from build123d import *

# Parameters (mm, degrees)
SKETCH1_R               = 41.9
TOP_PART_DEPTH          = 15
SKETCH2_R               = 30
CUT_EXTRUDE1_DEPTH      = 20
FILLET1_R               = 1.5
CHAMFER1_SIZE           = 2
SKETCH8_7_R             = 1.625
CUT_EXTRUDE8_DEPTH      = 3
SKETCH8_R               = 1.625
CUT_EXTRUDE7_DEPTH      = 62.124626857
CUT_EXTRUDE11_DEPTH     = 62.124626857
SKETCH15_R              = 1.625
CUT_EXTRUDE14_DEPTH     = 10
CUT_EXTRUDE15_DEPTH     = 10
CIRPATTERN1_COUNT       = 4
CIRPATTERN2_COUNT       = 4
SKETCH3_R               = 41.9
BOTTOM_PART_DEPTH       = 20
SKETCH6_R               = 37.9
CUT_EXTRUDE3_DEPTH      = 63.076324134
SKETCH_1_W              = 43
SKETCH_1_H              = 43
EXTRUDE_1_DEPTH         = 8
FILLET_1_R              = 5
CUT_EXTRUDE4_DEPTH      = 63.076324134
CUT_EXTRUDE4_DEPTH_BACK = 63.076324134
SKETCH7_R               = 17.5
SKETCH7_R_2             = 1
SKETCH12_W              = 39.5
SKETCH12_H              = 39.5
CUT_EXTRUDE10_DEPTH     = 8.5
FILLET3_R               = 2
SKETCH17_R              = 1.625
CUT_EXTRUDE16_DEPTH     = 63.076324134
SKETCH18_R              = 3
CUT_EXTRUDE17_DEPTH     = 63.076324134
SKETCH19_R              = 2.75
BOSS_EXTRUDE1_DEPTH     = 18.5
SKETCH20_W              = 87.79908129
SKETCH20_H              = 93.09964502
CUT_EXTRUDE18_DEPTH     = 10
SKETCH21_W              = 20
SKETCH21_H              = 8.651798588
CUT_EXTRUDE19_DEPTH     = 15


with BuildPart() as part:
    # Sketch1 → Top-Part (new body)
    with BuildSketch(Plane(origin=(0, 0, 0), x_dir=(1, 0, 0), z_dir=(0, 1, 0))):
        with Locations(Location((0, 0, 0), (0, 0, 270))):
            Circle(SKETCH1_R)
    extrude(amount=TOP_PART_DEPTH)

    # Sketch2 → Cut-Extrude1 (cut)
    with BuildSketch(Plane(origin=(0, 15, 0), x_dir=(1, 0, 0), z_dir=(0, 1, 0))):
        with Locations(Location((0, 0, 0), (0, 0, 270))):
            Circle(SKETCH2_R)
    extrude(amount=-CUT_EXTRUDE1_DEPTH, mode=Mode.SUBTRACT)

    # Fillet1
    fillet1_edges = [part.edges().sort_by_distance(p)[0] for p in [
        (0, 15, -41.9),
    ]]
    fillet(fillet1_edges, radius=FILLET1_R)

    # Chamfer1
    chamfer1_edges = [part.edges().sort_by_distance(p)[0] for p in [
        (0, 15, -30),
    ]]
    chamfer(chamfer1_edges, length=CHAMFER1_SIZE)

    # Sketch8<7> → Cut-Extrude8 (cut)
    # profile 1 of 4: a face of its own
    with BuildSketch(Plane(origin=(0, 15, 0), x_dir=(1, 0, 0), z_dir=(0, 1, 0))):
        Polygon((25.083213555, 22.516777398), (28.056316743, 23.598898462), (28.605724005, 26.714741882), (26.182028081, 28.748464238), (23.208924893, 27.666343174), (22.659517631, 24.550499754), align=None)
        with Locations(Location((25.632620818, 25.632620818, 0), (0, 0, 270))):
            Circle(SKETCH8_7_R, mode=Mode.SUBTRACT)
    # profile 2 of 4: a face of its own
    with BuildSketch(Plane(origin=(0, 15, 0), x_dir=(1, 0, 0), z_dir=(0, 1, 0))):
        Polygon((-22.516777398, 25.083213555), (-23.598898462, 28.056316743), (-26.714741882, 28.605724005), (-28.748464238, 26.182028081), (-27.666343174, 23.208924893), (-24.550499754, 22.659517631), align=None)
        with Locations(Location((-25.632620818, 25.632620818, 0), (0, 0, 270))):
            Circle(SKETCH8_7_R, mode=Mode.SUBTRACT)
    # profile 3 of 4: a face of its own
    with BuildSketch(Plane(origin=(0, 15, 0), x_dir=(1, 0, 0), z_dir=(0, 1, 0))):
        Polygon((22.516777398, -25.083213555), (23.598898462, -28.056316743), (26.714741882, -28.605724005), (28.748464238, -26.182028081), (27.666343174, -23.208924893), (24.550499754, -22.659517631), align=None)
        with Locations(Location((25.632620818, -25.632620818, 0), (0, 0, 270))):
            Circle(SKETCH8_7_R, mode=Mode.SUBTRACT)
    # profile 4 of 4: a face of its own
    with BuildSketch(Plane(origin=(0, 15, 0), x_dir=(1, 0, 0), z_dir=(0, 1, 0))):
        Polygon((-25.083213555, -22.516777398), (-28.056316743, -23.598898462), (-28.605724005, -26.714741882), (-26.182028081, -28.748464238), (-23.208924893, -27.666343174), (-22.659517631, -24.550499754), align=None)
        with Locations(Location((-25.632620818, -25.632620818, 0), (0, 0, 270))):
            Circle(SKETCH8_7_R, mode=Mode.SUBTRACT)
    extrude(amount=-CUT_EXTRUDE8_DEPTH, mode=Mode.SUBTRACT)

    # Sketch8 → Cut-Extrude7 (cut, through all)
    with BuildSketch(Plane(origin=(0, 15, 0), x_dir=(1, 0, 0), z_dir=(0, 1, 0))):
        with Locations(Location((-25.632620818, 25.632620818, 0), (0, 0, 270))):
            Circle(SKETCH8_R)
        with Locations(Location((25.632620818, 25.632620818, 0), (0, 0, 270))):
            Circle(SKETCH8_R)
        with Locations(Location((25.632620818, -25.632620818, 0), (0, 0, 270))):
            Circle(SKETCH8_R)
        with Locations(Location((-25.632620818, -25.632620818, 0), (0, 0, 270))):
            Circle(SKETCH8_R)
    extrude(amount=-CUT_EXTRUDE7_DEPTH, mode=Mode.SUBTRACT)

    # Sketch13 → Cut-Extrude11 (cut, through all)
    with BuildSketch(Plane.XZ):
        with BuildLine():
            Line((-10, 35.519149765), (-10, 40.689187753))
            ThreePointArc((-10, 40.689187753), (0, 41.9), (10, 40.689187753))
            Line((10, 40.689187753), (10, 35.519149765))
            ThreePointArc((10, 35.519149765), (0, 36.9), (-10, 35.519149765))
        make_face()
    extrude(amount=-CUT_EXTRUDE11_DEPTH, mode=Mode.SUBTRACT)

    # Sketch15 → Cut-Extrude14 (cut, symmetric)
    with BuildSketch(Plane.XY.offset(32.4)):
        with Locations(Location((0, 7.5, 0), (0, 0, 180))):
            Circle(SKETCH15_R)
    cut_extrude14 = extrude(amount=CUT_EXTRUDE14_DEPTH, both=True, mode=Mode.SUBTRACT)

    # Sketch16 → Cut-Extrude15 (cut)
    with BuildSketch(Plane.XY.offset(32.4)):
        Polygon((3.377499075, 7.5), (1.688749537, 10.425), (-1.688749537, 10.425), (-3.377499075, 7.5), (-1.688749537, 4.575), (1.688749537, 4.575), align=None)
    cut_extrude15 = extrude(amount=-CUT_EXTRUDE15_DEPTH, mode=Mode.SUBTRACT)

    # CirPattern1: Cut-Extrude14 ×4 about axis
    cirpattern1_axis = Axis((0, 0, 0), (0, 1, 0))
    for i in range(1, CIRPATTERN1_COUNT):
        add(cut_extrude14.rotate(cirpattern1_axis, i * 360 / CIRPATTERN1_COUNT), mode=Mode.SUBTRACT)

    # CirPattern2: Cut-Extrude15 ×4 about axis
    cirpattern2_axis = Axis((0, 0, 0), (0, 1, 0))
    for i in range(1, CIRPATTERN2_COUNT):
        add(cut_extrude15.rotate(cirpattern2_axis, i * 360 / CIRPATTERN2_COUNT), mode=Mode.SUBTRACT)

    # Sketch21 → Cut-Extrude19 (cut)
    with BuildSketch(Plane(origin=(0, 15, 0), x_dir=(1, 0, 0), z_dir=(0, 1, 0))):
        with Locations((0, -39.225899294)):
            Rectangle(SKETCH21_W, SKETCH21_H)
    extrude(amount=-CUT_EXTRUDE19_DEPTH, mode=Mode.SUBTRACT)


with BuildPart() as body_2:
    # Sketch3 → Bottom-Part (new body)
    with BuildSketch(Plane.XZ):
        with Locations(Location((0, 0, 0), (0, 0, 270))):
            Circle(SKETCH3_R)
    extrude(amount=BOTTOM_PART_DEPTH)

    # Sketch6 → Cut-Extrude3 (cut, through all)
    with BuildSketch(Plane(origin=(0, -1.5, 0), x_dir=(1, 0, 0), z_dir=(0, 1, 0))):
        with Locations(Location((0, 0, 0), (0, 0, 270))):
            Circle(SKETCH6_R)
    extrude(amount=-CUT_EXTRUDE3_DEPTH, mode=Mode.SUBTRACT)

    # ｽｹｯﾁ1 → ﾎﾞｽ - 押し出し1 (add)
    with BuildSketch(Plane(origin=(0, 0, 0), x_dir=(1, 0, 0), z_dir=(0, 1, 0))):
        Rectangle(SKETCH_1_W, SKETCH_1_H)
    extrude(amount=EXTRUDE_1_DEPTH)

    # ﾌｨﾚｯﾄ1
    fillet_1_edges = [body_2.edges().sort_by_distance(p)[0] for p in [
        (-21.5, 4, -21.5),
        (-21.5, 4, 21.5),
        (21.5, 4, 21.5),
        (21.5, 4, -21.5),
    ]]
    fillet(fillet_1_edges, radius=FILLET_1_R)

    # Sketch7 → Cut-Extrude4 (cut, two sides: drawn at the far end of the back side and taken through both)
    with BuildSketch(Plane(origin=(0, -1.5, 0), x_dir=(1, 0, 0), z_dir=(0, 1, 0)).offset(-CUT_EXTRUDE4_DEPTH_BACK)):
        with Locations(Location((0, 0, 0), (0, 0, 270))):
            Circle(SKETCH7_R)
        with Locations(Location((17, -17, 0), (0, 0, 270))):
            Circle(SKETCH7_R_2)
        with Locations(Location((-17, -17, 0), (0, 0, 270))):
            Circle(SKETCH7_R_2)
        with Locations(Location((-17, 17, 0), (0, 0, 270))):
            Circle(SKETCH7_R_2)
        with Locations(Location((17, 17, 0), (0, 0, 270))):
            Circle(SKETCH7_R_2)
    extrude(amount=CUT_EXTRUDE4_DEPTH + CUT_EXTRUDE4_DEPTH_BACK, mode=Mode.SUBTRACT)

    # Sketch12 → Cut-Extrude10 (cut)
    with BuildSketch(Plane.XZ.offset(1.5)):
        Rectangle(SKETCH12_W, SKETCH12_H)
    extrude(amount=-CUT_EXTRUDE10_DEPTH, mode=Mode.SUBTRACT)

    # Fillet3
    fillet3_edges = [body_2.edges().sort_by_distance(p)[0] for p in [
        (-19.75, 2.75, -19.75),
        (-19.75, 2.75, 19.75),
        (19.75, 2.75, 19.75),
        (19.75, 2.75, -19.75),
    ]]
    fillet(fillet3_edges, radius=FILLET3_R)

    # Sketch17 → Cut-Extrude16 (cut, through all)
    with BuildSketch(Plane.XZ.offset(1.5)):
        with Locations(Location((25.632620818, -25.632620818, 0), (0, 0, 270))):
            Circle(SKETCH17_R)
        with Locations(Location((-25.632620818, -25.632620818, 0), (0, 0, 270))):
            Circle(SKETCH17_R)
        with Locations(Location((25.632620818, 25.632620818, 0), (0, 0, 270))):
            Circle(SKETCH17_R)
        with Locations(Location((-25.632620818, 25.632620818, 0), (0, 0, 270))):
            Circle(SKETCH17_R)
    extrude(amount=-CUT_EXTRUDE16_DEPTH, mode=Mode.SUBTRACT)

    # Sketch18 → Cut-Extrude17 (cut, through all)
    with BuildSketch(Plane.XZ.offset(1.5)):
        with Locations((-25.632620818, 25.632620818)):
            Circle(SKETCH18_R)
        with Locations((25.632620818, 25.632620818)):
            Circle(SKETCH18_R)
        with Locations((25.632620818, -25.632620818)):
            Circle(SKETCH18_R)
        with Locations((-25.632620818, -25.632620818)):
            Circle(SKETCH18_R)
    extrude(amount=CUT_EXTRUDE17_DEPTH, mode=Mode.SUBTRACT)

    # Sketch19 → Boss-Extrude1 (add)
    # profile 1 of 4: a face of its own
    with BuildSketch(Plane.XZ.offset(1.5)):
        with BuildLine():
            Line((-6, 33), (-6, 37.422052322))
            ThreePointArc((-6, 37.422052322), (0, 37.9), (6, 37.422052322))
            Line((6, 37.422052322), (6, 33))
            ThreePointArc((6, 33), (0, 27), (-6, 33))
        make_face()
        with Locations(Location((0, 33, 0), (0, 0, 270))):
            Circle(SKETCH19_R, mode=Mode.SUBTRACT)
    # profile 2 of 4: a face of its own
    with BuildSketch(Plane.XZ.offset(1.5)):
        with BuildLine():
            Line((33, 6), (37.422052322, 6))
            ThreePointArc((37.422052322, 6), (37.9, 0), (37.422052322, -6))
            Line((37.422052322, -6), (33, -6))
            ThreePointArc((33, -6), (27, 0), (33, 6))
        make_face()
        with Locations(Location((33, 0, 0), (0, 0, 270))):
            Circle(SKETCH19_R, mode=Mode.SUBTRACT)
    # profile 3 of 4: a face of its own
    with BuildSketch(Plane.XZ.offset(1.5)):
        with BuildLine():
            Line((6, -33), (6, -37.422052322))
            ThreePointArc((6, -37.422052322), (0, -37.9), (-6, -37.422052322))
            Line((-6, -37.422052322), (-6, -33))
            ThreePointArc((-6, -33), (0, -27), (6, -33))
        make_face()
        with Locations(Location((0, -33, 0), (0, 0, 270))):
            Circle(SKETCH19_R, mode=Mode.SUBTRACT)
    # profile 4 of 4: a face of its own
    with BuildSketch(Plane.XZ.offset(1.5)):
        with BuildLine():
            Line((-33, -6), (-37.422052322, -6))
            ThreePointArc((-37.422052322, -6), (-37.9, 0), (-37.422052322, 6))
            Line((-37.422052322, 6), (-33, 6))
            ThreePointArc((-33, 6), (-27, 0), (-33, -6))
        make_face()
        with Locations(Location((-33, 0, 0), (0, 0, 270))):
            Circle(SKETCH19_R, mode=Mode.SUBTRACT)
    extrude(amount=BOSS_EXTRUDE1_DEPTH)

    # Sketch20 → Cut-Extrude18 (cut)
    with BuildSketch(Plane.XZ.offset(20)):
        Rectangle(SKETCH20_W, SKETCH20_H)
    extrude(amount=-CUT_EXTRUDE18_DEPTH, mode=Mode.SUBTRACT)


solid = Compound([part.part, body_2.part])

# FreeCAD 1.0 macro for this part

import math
import FreeCAD as App
import Part
import Sketcher

V = App.Vector
Q = App.Units.Quantity


def edges_at(feature, points):
    """Names of the edges that pass closest to the given points."""
    edges = feature.Shape.Edges
    near = lambda p: min(range(len(edges)), key=lambda i: edges[i].distToShape(Part.Vertex(*p))[0])
    return sorted({f"Edge{near(p) + 1}" for p in points})

doc = App.newDocument("Part")
body = doc.addObject("PartDesign::Body", "Body")

# Sketch on XZ plane
sketch1 = doc.addObject("Sketcher::SketchObject", "Sketch")
body.addObject(sketch1)
sketch1.AttachmentSupport = (doc.XZ_Plane, [""])
sketch1.MapMode = "FlatFace"
sketch1.addGeometry(Part.Circle(V(0, 0, 0), V(0, 0, 1), 42), False)
sketch1.addConstraint([
    Sketcher.Constraint("Coincident", 0, 3, -1, 1),
    Sketcher.Constraint("Diameter", 0, Q("83.8 mm")),
])
pad1 = doc.addObject("PartDesign::Pad", "Pad")
body.addObject(pad1)
pad1.Profile = sketch1
pad1.Length = 15
pad1.Reversed = True

# Sketch on XZ plane
sketch2 = doc.addObject("Sketcher::SketchObject", "Sketch001")
body.addObject(sketch2)
sketch2.AttachmentSupport = (doc.XZ_Plane, [""])
sketch2.MapMode = "FlatFace"
sketch2.AttachmentOffset = App.Placement(V(0, 0, -15), App.Rotation())
sketch2.addGeometry(Part.Circle(V(0, 0, 0), V(0, 0, 1), 30), False)
sketch2.addConstraint([
    Sketcher.Constraint("Coincident", 0, 3, -1, 1),
    Sketcher.Constraint("Diameter", 0, Q("60 mm")),
])
pocket1 = doc.addObject("PartDesign::Pocket", "Pocket")
body.addObject(pocket1)
pocket1.Profile = sketch2
pocket1.Length = 20
pocket1.Reversed = True
doc.recompute()

fillet = doc.addObject("PartDesign::Fillet", "Fillet")
body.addObject(fillet)
fillet.Base = (pocket1, edges_at(pocket1, [(0, 15, -41.9)]))
fillet.Radius = 1.5
doc.recompute()

chamfer = doc.addObject("PartDesign::Chamfer", "Chamfer")
body.addObject(chamfer)
chamfer.Base = (fillet, edges_at(fillet, [(0, 15, -30)]))
chamfer.Size = 2

# Sketch on XZ plane
sketch3 = doc.addObject("Sketcher::SketchObject", "Sketch002")
body.addObject(sketch3)
sketch3.AttachmentSupport = (doc.XZ_Plane, [""])
sketch3.MapMode = "FlatFace"
sketch3.AttachmentOffset = App.Placement(V(0, 0, -15), App.Rotation())
sketch3.addGeometry([
    Part.LineSegment(V(25.1, -22.5, 0), V(28.1, -23.6, 0)),  # 0
    Part.LineSegment(V(28.1, -23.6, 0), V(28.6, -26.7, 0)),  # 1
    Part.LineSegment(V(28.6, -26.7, 0), V(26.2, -28.7, 0)),  # 2
    Part.LineSegment(V(26.2, -28.7, 0), V(23.2, -27.7, 0)),  # 3
    Part.LineSegment(V(23.2, -27.7, 0), V(22.7, -24.6, 0)),  # 4
    Part.LineSegment(V(22.7, -24.6, 0), V(25.1, -22.5, 0)),  # 5
    Part.Circle(V(25.6, -25.6, 0), V(0, 0, 1), 1.6),  # 6
    Part.LineSegment(V(-22.5, -25.1, 0), V(-23.6, -28.1, 0)),  # 7
    Part.LineSegment(V(-23.6, -28.1, 0), V(-26.7, -28.6, 0)),  # 8
    Part.LineSegment(V(-26.7, -28.6, 0), V(-28.7, -26.2, 0)),  # 9
    Part.LineSegment(V(-28.7, -26.2, 0), V(-27.7, -23.2, 0)),  # 10
    Part.LineSegment(V(-27.7, -23.2, 0), V(-24.6, -22.7, 0)),  # 11
    Part.LineSegment(V(-24.6, -22.7, 0), V(-22.5, -25.1, 0)),  # 12
    Part.Circle(V(-25.6, -25.6, 0), V(0, 0, 1), 1.6),  # 13
    Part.LineSegment(V(22.5, 25.1, 0), V(23.6, 28.1, 0)),  # 14
    Part.LineSegment(V(23.6, 28.1, 0), V(26.7, 28.6, 0)),  # 15
    Part.LineSegment(V(26.7, 28.6, 0), V(28.7, 26.2, 0)),  # 16
    Part.LineSegment(V(28.7, 26.2, 0), V(27.7, 23.2, 0)),  # 17
    Part.LineSegment(V(27.7, 23.2, 0), V(24.6, 22.7, 0)),  # 18
    Part.LineSegment(V(24.6, 22.7, 0), V(22.5, 25.1, 0)),  # 19
    Part.Circle(V(25.6, 25.6, 0), V(0, 0, 1), 1.6),  # 20
    Part.LineSegment(V(-25.1, 22.5, 0), V(-28.1, 23.6, 0)),  # 21
    Part.LineSegment(V(-28.1, 23.6, 0), V(-28.6, 26.7, 0)),  # 22
    Part.LineSegment(V(-28.6, 26.7, 0), V(-26.2, 28.7, 0)),  # 23
    Part.LineSegment(V(-26.2, 28.7, 0), V(-23.2, 27.7, 0)),  # 24
    Part.LineSegment(V(-23.2, 27.7, 0), V(-22.7, 24.6, 0)),  # 25
    Part.LineSegment(V(-22.7, 24.6, 0), V(-25.1, 22.5, 0)),  # 26
    Part.Circle(V(-25.6, 25.6, 0), V(0, 0, 1), 1.6),  # 27
], False)
sketch3.addConstraint([
    Sketcher.Constraint("Coincident", 0, 2, 1, 1),
    Sketcher.Constraint("Coincident", 1, 2, 2, 1),
    Sketcher.Constraint("Coincident", 2, 2, 3, 1),
    Sketcher.Constraint("Coincident", 3, 2, 4, 1),
    Sketcher.Constraint("Coincident", 4, 2, 5, 1),
    Sketcher.Constraint("Coincident", 5, 2, 0, 1),
    Sketcher.Constraint("Coincident", 7, 2, 8, 1),
    Sketcher.Constraint("Coincident", 8, 2, 9, 1),
    Sketcher.Constraint("Coincident", 9, 2, 10, 1),
    Sketcher.Constraint("Coincident", 10, 2, 11, 1),
    Sketcher.Constraint("Coincident", 11, 2, 12, 1),
    Sketcher.Constraint("Coincident", 12, 2, 7, 1),
    Sketcher.Constraint("Coincident", 14, 2, 15, 1),
    Sketcher.Constraint("Coincident", 15, 2, 16, 1),
    Sketcher.Constraint("Coincident", 16, 2, 17, 1),
    Sketcher.Constraint("Coincident", 17, 2, 18, 1),
    Sketcher.Constraint("Coincident", 18, 2, 19, 1),
    Sketcher.Constraint("Coincident", 19, 2, 14, 1),
    Sketcher.Constraint("Coincident", 21, 2, 22, 1),
    Sketcher.Constraint("Coincident", 22, 2, 23, 1),
    Sketcher.Constraint("Coincident", 23, 2, 24, 1),
    Sketcher.Constraint("Coincident", 24, 2, 25, 1),
    Sketcher.Constraint("Coincident", 25, 2, 26, 1),
    Sketcher.Constraint("Coincident", 26, 2, 21, 1),
    Sketcher.Constraint("Equal", 6, 13),
    Sketcher.Constraint("Equal", 13, 20),
    Sketcher.Constraint("Equal", 20, 27),
    Sketcher.Constraint("Symmetric", 13, 3, 20, 3, -1, 1),
    Sketcher.Constraint("Symmetric", 6, 3, 27, 3, -1, 1),
    Sketcher.Constraint("Symmetric", 7, 2, 14, 2, -1, 1),
    Sketcher.Constraint("Symmetric", 8, 2, 15, 2, -1, 1),
    Sketcher.Constraint("Symmetric", 9, 2, 16, 2, -1, 1),
    Sketcher.Constraint("Symmetric", 10, 2, 17, 2, -1, 1),
    Sketcher.Constraint("Symmetric", 11, 2, 18, 2, -1, 1),
    Sketcher.Constraint("Symmetric", 12, 2, 19, 2, -1, 1),
    Sketcher.Constraint("Symmetric", 0, 2, 21, 2, -1, 1),
    Sketcher.Constraint("Symmetric", 1, 2, 22, 2, -1, 1),
    Sketcher.Constraint("Symmetric", 2, 2, 23, 2, -1, 1),
    Sketcher.Constraint("Symmetric", 3, 2, 24, 2, -1, 1),
    Sketcher.Constraint("Symmetric", 4, 2, 25, 2, -1, 1),
    Sketcher.Constraint("Symmetric", 5, 2, 26, 2, -1, 1),
    Sketcher.Constraint("Symmetric", 6, 3, 13, 3, -2),
    Sketcher.Constraint("Parallel", 0, 3),
    Sketcher.Constraint("Parallel", 1, 4),
    Sketcher.Constraint("Parallel", 2, 5),
    Sketcher.Constraint("Perpendicular", 3, 7),
    Sketcher.Constraint("Perpendicular", 4, 8),
    Sketcher.Constraint("Perpendicular", 5, 9),
    Sketcher.Constraint("Parallel", 7, 10),
    Sketcher.Constraint("Parallel", 8, 11),
    Sketcher.Constraint("Parallel", 9, 12),
    Sketcher.Constraint("Equal", 0, 1),
    Sketcher.Constraint("Equal", 1, 2),
    Sketcher.Constraint("Equal", 2, 3),
    Sketcher.Constraint("Equal", 5, 7),
    Sketcher.Constraint("Equal", 7, 8),
    Sketcher.Constraint("Equal", 8, 9),
    Sketcher.Constraint("Equal", 9, 10),
    Sketcher.Constraint("Diameter", 6, Q("3.25 mm")),
    Sketcher.Constraint("Angle", 0, Q("-20 deg")),
    Sketcher.Constraint("Angle", 1, Q("-80 deg")),
    Sketcher.Constraint("Angle", 2, Q("-140 deg")),
    Sketcher.Constraint("DistanceY", 0, 2, -1, 1, Q("23.598898 mm")),
    Sketcher.Constraint("DistanceY", 4, 2, -1, 1, Q("24.5505 mm")),
    Sketcher.Constraint("DistanceX", 7, 2, -1, 1, Q("23.598898 mm")),
    Sketcher.Constraint("DistanceY", 5, 2, 15, 2, Q("51.122501 mm")),
    Sketcher.Constraint("DistanceX", 22, 2, 19, 2, Q("51.122501 mm")),
    Sketcher.Constraint("DistanceX", -1, 1, 6, 3, Q("25.632621 mm")),
    Sketcher.Constraint("DistanceY", 6, 3, -1, 1, Q("25.632621 mm")),
])
pocket2 = doc.addObject("PartDesign::Pocket", "Pocket001")
body.addObject(pocket2)
pocket2.Profile = sketch3
pocket2.Length = 3
pocket2.Reversed = True

# Sketch on XZ plane
sketch4 = doc.addObject("Sketcher::SketchObject", "Sketch003")
body.addObject(sketch4)
sketch4.AttachmentSupport = (doc.XZ_Plane, [""])
sketch4.MapMode = "FlatFace"
sketch4.AttachmentOffset = App.Placement(V(0, 0, -15), App.Rotation())
sketch4.addGeometry([
    Part.Circle(V(-25.6, -25.6, 0), V(0, 0, 1), 1.6),
    Part.Circle(V(25.6, -25.6, 0), V(0, 0, 1), 1.6),
    Part.Circle(V(25.6, 25.6, 0), V(0, 0, 1), 1.6),
    Part.Circle(V(-25.6, 25.6, 0), V(0, 0, 1), 1.6),
], False)
sketch4.addConstraint([
    Sketcher.Constraint("Equal", 0, 1),
    Sketcher.Constraint("Equal", 1, 2),
    Sketcher.Constraint("Equal", 2, 3),
    Sketcher.Constraint("Symmetric", 0, 3, 2, 3, -1, 1),
    Sketcher.Constraint("Symmetric", 1, 3, 3, 3, -1, 1),
    Sketcher.Constraint("Symmetric", 0, 3, 1, 3, -2),
    Sketcher.Constraint("Diameter", 0, Q("3.25 mm")),
    Sketcher.Constraint("DistanceX", 0, 3, -1, 1, Q("25.632621 mm")),
    Sketcher.Constraint("DistanceY", 0, 3, -1, 1, Q("25.632621 mm")),
])
pocket3 = doc.addObject("PartDesign::Pocket", "Pocket002")
body.addObject(pocket3)
pocket3.Profile = sketch4
pocket3.Type = "ThroughAll"
pocket3.Reversed = True

# Sketch on XZ plane
sketch5 = doc.addObject("Sketcher::SketchObject", "Sketch004")
body.addObject(sketch5)
sketch5.AttachmentSupport = (doc.XZ_Plane, [""])
sketch5.MapMode = "FlatFace"
sketch5.addGeometry([
    Part.LineSegment(V(-10, 41, 0), V(-10, 36, 0)),
    Part.ArcOfCircle(Part.Circle(V(0, 0, 0), V(0, 0, 1), 37), math.radians(74), math.radians(106)),
    Part.LineSegment(V(10, 36, 0), V(10, 41, 0)),
    Part.ArcOfCircle(Part.Circle(V(0, 0, 0), V(0, 0, 1), 42), math.radians(76), math.radians(104)),
], False)
sketch5.addConstraint([
    Sketcher.Constraint("Coincident", 0, 2, 1, 2),
    Sketcher.Constraint("Coincident", 1, 1, 2, 1),
    Sketcher.Constraint("Coincident", 2, 2, 3, 1),
    Sketcher.Constraint("Coincident", 3, 2, 0, 1),
    Sketcher.Constraint("Vertical", 0),
    Sketcher.Constraint("Vertical", 2),
    Sketcher.Constraint("Coincident", 1, 3, -1, 1),
    Sketcher.Constraint("Coincident", 3, 3, -1, 1),
    Sketcher.Constraint("Horizontal", 0, 2, 1, 1),
    Sketcher.Constraint("Radius", 1, Q("36.9 mm")),
    Sketcher.Constraint("Radius", 3, Q("41.9 mm")),
    Sketcher.Constraint("DistanceX", 0, 2, -1, 1, Q("10 mm")),
])
pocket4 = doc.addObject("PartDesign::Pocket", "Pocket003")
body.addObject(pocket4)
pocket4.Profile = sketch5
pocket4.Type = "ThroughAll"

# Sketch on XY plane
sketch6 = doc.addObject("Sketcher::SketchObject", "Sketch005")
body.addObject(sketch6)
sketch6.AttachmentSupport = (doc.XY_Plane, [""])
sketch6.MapMode = "FlatFace"
sketch6.AttachmentOffset = App.Placement(V(0, 0, 32.4), App.Rotation())
sketch6.addGeometry(Part.Circle(V(0, 7.5, 0), V(0, 0, 1), 1.6), False)
sketch6.addConstraint([
    Sketcher.Constraint("PointOnObject", 0, 3, -2),
    Sketcher.Constraint("Diameter", 0, Q("3.25 mm")),
    Sketcher.Constraint("DistanceY", -1, 1, 0, 3, Q("7.5 mm")),
])
pocket5 = doc.addObject("PartDesign::Pocket", "Pocket004")
body.addObject(pocket5)
pocket5.Profile = sketch6
pocket5.Length = 20
pocket5.Midplane = True

# Sketch on XY plane
sketch7 = doc.addObject("Sketcher::SketchObject", "Sketch006")
body.addObject(sketch7)
sketch7.AttachmentSupport = (doc.XY_Plane, [""])
sketch7.MapMode = "FlatFace"
sketch7.AttachmentOffset = App.Placement(V(0, 0, 32.4), App.Rotation())
sketch7.addGeometry([
    Part.LineSegment(V(3.4, 7.5, 0), V(1.7, 10.4, 0)),  # 0
    Part.LineSegment(V(1.7, 10.4, 0), V(-1.7, 10.4, 0)),  # 1
    Part.LineSegment(V(-1.7, 10.4, 0), V(-3.4, 7.5, 0)),  # 2
    Part.LineSegment(V(-3.4, 7.5, 0), V(-1.7, 4.6, 0)),  # 3
    Part.LineSegment(V(-1.7, 4.6, 0), V(1.7, 4.6, 0)),  # 4
    Part.LineSegment(V(1.7, 4.6, 0), V(3.4, 7.5, 0)),  # 5
], False)
sketch7.addConstraint([
    Sketcher.Constraint("Coincident", 0, 2, 1, 1),
    Sketcher.Constraint("Coincident", 1, 2, 2, 1),
    Sketcher.Constraint("Coincident", 2, 2, 3, 1),
    Sketcher.Constraint("Coincident", 3, 2, 4, 1),
    Sketcher.Constraint("Coincident", 4, 2, 5, 1),
    Sketcher.Constraint("Coincident", 5, 2, 0, 1),
    Sketcher.Constraint("Horizontal", 1),
    Sketcher.Constraint("Horizontal", 4),
    Sketcher.Constraint("Symmetric", 2, 2, 5, 2, -2),
    Sketcher.Constraint("Parallel", 0, 3),
    Sketcher.Constraint("Parallel", 2, 5),
    Sketcher.Constraint("Vertical", 1, 2, 3, 2),
    Sketcher.Constraint("Vertical", 0, 2, 4, 2),
    Sketcher.Constraint("Angle", 0, Q("120 deg")),
    Sketcher.Constraint("DistanceY", -1, 1, 2, 2, Q("7.5 mm")),
    Sketcher.Constraint("DistanceY", 3, 2, 1, 2, Q("5.85 mm")),
    Sketcher.Constraint("DistanceX", 1, 2, 1, 1, Q("3.377499 mm")),
])
pocket6 = doc.addObject("PartDesign::Pocket", "Pocket005")
body.addObject(pocket6)
pocket6.Profile = sketch7
pocket6.Length = 10
doc.recompute()

polarpattern = doc.addObject("PartDesign::PolarPattern", "PolarPattern")
body.addObject(polarpattern)
polarpattern.Originals = [pocket5]
polarpattern.Axis = (doc.Y_Axis, [""])
polarpattern.Angle = 360
polarpattern.Occurrences = 4
body.Tip = polarpattern
doc.recompute()

polarpattern2 = doc.addObject("PartDesign::PolarPattern", "PolarPattern001")
body.addObject(polarpattern2)
polarpattern2.Originals = [pocket6]
polarpattern2.Axis = (doc.Y_Axis, [""])
polarpattern2.Angle = 360
polarpattern2.Occurrences = 4
body.Tip = polarpattern2

# Sketch on XZ plane
sketch8 = doc.addObject("Sketcher::SketchObject", "Sketch007")
body.addObject(sketch8)
sketch8.AttachmentSupport = (doc.XZ_Plane, [""])
sketch8.MapMode = "FlatFace"
sketch8.AttachmentOffset = App.Placement(V(0, 0, -15), App.Rotation())
sketch8.addGeometry([
    Part.LineSegment(V(-10, 35, 0), V(-10, 44, 0)),
    Part.LineSegment(V(-10, 44, 0), V(10, 44, 0)),
    Part.LineSegment(V(10, 44, 0), V(10, 35, 0)),
    Part.LineSegment(V(10, 35, 0), V(-10, 35, 0)),
], False)
sketch8.addConstraint([
    Sketcher.Constraint("Coincident", 0, 2, 1, 1),
    Sketcher.Constraint("Coincident", 1, 2, 2, 1),
    Sketcher.Constraint("Coincident", 2, 2, 3, 1),
    Sketcher.Constraint("Coincident", 3, 2, 0, 1),
    Sketcher.Constraint("Vertical", 0),
    Sketcher.Constraint("Horizontal", 1),
    Sketcher.Constraint("Vertical", 2),
    Sketcher.Constraint("Horizontal", 3),
    Sketcher.Constraint("DistanceX", 1, 1, 1, 2, Q("20 mm")),
    Sketcher.Constraint("DistanceX", 0, 2, -1, 1, Q("10 mm")),
    Sketcher.Constraint("DistanceY", -1, 1, 2, 2, Q("34.9 mm")),
    Sketcher.Constraint("DistanceY", 0, 1, 0, 2, Q("8.651799 mm")),
])
pocket7 = doc.addObject("PartDesign::Pocket", "Pocket006")
body.addObject(pocket7)
pocket7.Profile = sketch8
pocket7.Length = 15
pocket7.Reversed = True
body2 = doc.addObject("PartDesign::Body", "Body001")

# Sketch on XZ plane
sketch9 = doc.addObject("Sketcher::SketchObject", "Sketch008")
body2.addObject(sketch9)
sketch9.AttachmentSupport = (doc.getObject("XZ_Plane001"), [""])
sketch9.MapMode = "FlatFace"
sketch9.addGeometry(Part.Circle(V(0, 0, 0), V(0, 0, 1), 42), False)
sketch9.addConstraint([
    Sketcher.Constraint("Coincident", 0, 3, -1, 1),
    Sketcher.Constraint("Diameter", 0, Q("83.8 mm")),
])
pad2 = doc.addObject("PartDesign::Pad", "Pad001")
body2.addObject(pad2)
pad2.Profile = sketch9
pad2.Length = 20

# Sketch on XZ plane
sketch10 = doc.addObject("Sketcher::SketchObject", "Sketch009")
body2.addObject(sketch10)
sketch10.AttachmentSupport = (doc.getObject("XZ_Plane001"), [""])
sketch10.MapMode = "FlatFace"
sketch10.AttachmentOffset = App.Placement(V(0, 0, 1.5), App.Rotation())
sketch10.addGeometry(Part.Circle(V(0, 0, 0), V(0, 0, 1), 38), False)
sketch10.addConstraint([
    Sketcher.Constraint("Coincident", 0, 3, -1, 1),
    Sketcher.Constraint("Diameter", 0, Q("75.8 mm")),
])
pocket8 = doc.addObject("PartDesign::Pocket", "Pocket007")
body2.addObject(pocket8)
pocket8.Profile = sketch10
pocket8.Type = "ThroughAll"
pocket8.Reversed = True

# Sketch on XZ plane
sketch11 = doc.addObject("Sketcher::SketchObject", "Sketch010")
body2.addObject(sketch11)
sketch11.AttachmentSupport = (doc.getObject("XZ_Plane001"), [""])
sketch11.MapMode = "FlatFace"
sketch11.addGeometry([
    Part.LineSegment(V(-22, -22, 0), V(-22, 22, 0)),
    Part.LineSegment(V(-22, 22, 0), V(22, 22, 0)),
    Part.LineSegment(V(22, 22, 0), V(22, -22, 0)),
    Part.LineSegment(V(22, -22, 0), V(-22, -22, 0)),
], False)
sketch11.addConstraint([
    Sketcher.Constraint("Coincident", 0, 2, 1, 1),
    Sketcher.Constraint("Coincident", 1, 2, 2, 1),
    Sketcher.Constraint("Coincident", 2, 2, 3, 1),
    Sketcher.Constraint("Coincident", 3, 2, 0, 1),
    Sketcher.Constraint("Vertical", 0),
    Sketcher.Constraint("Horizontal", 1),
    Sketcher.Constraint("Vertical", 2),
    Sketcher.Constraint("Horizontal", 3),
    Sketcher.Constraint("Symmetric", 0, 2, 2, 2, -1, 1),
    Sketcher.Constraint("Equal", 3, 0),
    Sketcher.Constraint("DistanceX", 1, 1, 1, 2, Q("43 mm")),
])
pad3 = doc.addObject("PartDesign::Pad", "Pad002")
body2.addObject(pad3)
pad3.Profile = sketch11
pad3.Length = 8
pad3.Reversed = True
doc.recompute()

fillet2 = doc.addObject("PartDesign::Fillet", "Fillet001")
body2.addObject(fillet2)
fillet2.Base = (pad3, edges_at(pad3, [
    (-21.5, 4, -21.5),
    (-21.5, 4, 21.5),
    (21.5, 4, 21.5),
    (21.5, 4, -21.5),
]))
fillet2.Radius = 5

# Sketch on XZ plane
sketch12 = doc.addObject("Sketcher::SketchObject", "Sketch011")
body2.addObject(sketch12)
sketch12.AttachmentSupport = (doc.getObject("XZ_Plane001"), [""])
sketch12.MapMode = "FlatFace"
sketch12.AttachmentOffset = App.Placement(V(0, 0, 1.5), App.Rotation())
sketch12.addGeometry([
    Part.Circle(V(0, 0, 0), V(0, 0, 1), 17.5),  # 0
    Part.Circle(V(17, 17, 0), V(0, 0, 1), 1),  # 1
    Part.Circle(V(-17, 17, 0), V(0, 0, 1), 1),  # 2
    Part.Circle(V(-17, -17, 0), V(0, 0, 1), 1),  # 3
    Part.Circle(V(17, -17, 0), V(0, 0, 1), 1),  # 4
], False)
sketch12.addConstraint([
    Sketcher.Constraint("Coincident", 0, 3, -1, 1),
    Sketcher.Constraint("Equal", 1, 2),
    Sketcher.Constraint("Equal", 2, 3),
    Sketcher.Constraint("Equal", 3, 4),
    Sketcher.Constraint("Symmetric", 1, 3, 3, 3, -1, 1),
    Sketcher.Constraint("Symmetric", 2, 3, 4, 3, -1, 1),
    Sketcher.Constraint("Symmetric", 1, 3, 2, 3, -2),
    Sketcher.Constraint("Diameter", 0, Q("35 mm")),
    Sketcher.Constraint("Diameter", 1, Q("2 mm")),
    Sketcher.Constraint("DistanceX", -1, 1, 1, 3, Q("17 mm")),
    Sketcher.Constraint("DistanceY", -1, 1, 1, 3, Q("17 mm")),
])
pocket9 = doc.addObject("PartDesign::Pocket", "Pocket008")
body2.addObject(pocket9)
pocket9.Profile = sketch12
pocket9.Type = "ThroughAll"
pocket9.Midplane = True

# Sketch on XZ plane
sketch13 = doc.addObject("Sketcher::SketchObject", "Sketch012")
body2.addObject(sketch13)
sketch13.AttachmentSupport = (doc.getObject("XZ_Plane001"), [""])
sketch13.MapMode = "FlatFace"
sketch13.AttachmentOffset = App.Placement(V(0, 0, 1.5), App.Rotation())
sketch13.addGeometry([
    Part.LineSegment(V(-20, 20, 0), V(-20, -20, 0)),
    Part.LineSegment(V(-20, -20, 0), V(20, -20, 0)),
    Part.LineSegment(V(20, -20, 0), V(20, 20, 0)),
    Part.LineSegment(V(20, 20, 0), V(-20, 20, 0)),
], False)
sketch13.addConstraint([
    Sketcher.Constraint("Coincident", 0, 2, 1, 1),
    Sketcher.Constraint("Coincident", 1, 2, 2, 1),
    Sketcher.Constraint("Coincident", 2, 2, 3, 1),
    Sketcher.Constraint("Coincident", 3, 2, 0, 1),
    Sketcher.Constraint("Vertical", 0),
    Sketcher.Constraint("Horizontal", 1),
    Sketcher.Constraint("Vertical", 2),
    Sketcher.Constraint("Horizontal", 3),
    Sketcher.Constraint("Symmetric", 0, 2, 2, 2, -1, 1),
    Sketcher.Constraint("Equal", 3, 0),
    Sketcher.Constraint("DistanceX", 1, 1, 1, 2, Q("39.5 mm")),
])
pocket10 = doc.addObject("PartDesign::Pocket", "Pocket009")
body2.addObject(pocket10)
pocket10.Profile = sketch13
pocket10.Length = 8.5
doc.recompute()

fillet3 = doc.addObject("PartDesign::Fillet", "Fillet002")
body2.addObject(fillet3)
fillet3.Base = (pocket10, edges_at(pocket10, [
    (-19.75, 2.75, -19.75),
    (-19.75, 2.75, 19.75),
    (19.75, 2.75, 19.75),
    (19.75, 2.75, -19.75),
]))
fillet3.Radius = 2

# Sketch on XZ plane
sketch14 = doc.addObject("Sketcher::SketchObject", "Sketch013")
body2.addObject(sketch14)
sketch14.AttachmentSupport = (doc.getObject("XZ_Plane001"), [""])
sketch14.MapMode = "FlatFace"
sketch14.AttachmentOffset = App.Placement(V(0, 0, 1.5), App.Rotation())
sketch14.addGeometry([
    Part.Circle(V(25.6, -25.6, 0), V(0, 0, 1), 1.6),
    Part.Circle(V(-25.6, -25.6, 0), V(0, 0, 1), 1.6),
    Part.Circle(V(25.6, 25.6, 0), V(0, 0, 1), 1.6),
    Part.Circle(V(-25.6, 25.6, 0), V(0, 0, 1), 1.6),
], False)
sketch14.addConstraint([
    Sketcher.Constraint("Equal", 0, 1),
    Sketcher.Constraint("Equal", 1, 2),
    Sketcher.Constraint("Equal", 2, 3),
    Sketcher.Constraint("Symmetric", 1, 3, 2, 3, -1, 1),
    Sketcher.Constraint("Symmetric", 0, 3, 3, 3, -1, 1),
    Sketcher.Constraint("Symmetric", 0, 3, 1, 3, -2),
    Sketcher.Constraint("Diameter", 0, Q("3.25 mm")),
    Sketcher.Constraint("DistanceX", -1, 1, 0, 3, Q("25.632621 mm")),
    Sketcher.Constraint("DistanceY", 0, 3, -1, 1, Q("25.632621 mm")),
])
pocket11 = doc.addObject("PartDesign::Pocket", "Pocket010")
body2.addObject(pocket11)
pocket11.Profile = sketch14
pocket11.Type = "ThroughAll"

# Sketch on XZ plane
sketch15 = doc.addObject("Sketcher::SketchObject", "Sketch014")
body2.addObject(sketch15)
sketch15.AttachmentSupport = (doc.getObject("XZ_Plane001"), [""])
sketch15.MapMode = "FlatFace"
sketch15.AttachmentOffset = App.Placement(V(0, 0, 1.5), App.Rotation())
sketch15.addGeometry([
    Part.Circle(V(-25.6, 25.6, 0), V(0, 0, 1), 3),
    Part.Circle(V(25.6, 25.6, 0), V(0, 0, 1), 3),
    Part.Circle(V(25.6, -25.6, 0), V(0, 0, 1), 3),
    Part.Circle(V(-25.6, -25.6, 0), V(0, 0, 1), 3),
], False)
sketch15.addConstraint([
    Sketcher.Constraint("Equal", 0, 1),
    Sketcher.Constraint("Equal", 1, 2),
    Sketcher.Constraint("Equal", 2, 3),
    Sketcher.Constraint("Symmetric", 0, 3, 2, 3, -1, 1),
    Sketcher.Constraint("Symmetric", 1, 3, 3, 3, -1, 1),
    Sketcher.Constraint("Symmetric", 0, 3, 1, 3, -2),
    Sketcher.Constraint("Diameter", 0, Q("6 mm")),
    Sketcher.Constraint("DistanceX", 0, 3, -1, 1, Q("25.632621 mm")),
    Sketcher.Constraint("DistanceY", -1, 1, 0, 3, Q("25.632621 mm")),
])
pocket12 = doc.addObject("PartDesign::Pocket", "Pocket011")
body2.addObject(pocket12)
pocket12.Profile = sketch15
pocket12.Type = "ThroughAll"
pocket12.Reversed = True

# Sketch on XZ plane
sketch16 = doc.addObject("Sketcher::SketchObject", "Sketch015")
body2.addObject(sketch16)
sketch16.AttachmentSupport = (doc.getObject("XZ_Plane001"), [""])
sketch16.MapMode = "FlatFace"
sketch16.AttachmentOffset = App.Placement(V(0, 0, 1.5), App.Rotation())
sketch16.addGeometry([
    Part.LineSegment(V(-6, 37.4, 0), V(-6, 33, 0)),  # 0
    Part.ArcOfCircle(Part.Circle(V(0, 33, 0), V(0, 0, 1), 6), math.radians(180), math.radians(360)),  # 1
    Part.LineSegment(V(6, 33, 0), V(6, 37.4, 0)),  # 2
    Part.ArcOfCircle(Part.Circle(V(0, 0, 0), V(0, 0, 1), 37.9), math.radians(80.89), math.radians(99.11)),  # 3
    Part.Circle(V(0, 33, 0), V(0, 0, 1), 2.8),  # 4
    Part.LineSegment(V(37.4, 6, 0), V(33, 6, 0)),  # 5
    Part.ArcOfCircle(Part.Circle(V(33, 0, 0), V(0, 0, 1), 6), math.radians(90), math.radians(270)),  # 6
    Part.LineSegment(V(33, -6, 0), V(37.4, -6, 0)),  # 7
    Part.ArcOfCircle(Part.Circle(V(0, 0, 0), V(0, 0, 1), 37.9), math.radians(-9.11), math.radians(9.11)),  # 8
    Part.Circle(V(33, 0, 0), V(0, 0, 1), 2.8),  # 9
    Part.LineSegment(V(6, -37.4, 0), V(6, -33, 0)),  # 10
    Part.ArcOfCircle(Part.Circle(V(0, -33, 0), V(0, 0, 1), 6), math.radians(0), math.radians(180)),  # 11
    Part.LineSegment(V(-6, -33, 0), V(-6, -37.4, 0)),  # 12
    Part.ArcOfCircle(Part.Circle(V(0, 0, 0), V(0, 0, 1), 37.9), math.radians(-99.11), math.radians(-80.89)),  # 13
    Part.Circle(V(0, -33, 0), V(0, 0, 1), 2.8),  # 14
    Part.LineSegment(V(-37.4, -6, 0), V(-33, -6, 0)),  # 15
    Part.ArcOfCircle(Part.Circle(V(-33, 0, 0), V(0, 0, 1), 6), math.radians(-90), math.radians(90)),  # 16
    Part.LineSegment(V(-33, 6, 0), V(-37.4, 6, 0)),  # 17
    Part.ArcOfCircle(Part.Circle(V(0, 0, 0), V(0, 0, 1), 37.9), math.radians(170.89), math.radians(189.11)),  # 18
    Part.Circle(V(-33, 0, 0), V(0, 0, 1), 2.8),  # 19
], False)
sketch16.addConstraint([
    Sketcher.Constraint("Tangent", 0, 2, 1, 1),
    Sketcher.Constraint("Tangent", 1, 2, 2, 1),
    Sketcher.Constraint("Coincident", 2, 2, 3, 1),
    Sketcher.Constraint("Coincident", 3, 2, 0, 1),
    Sketcher.Constraint("Tangent", 5, 2, 6, 1),
    Sketcher.Constraint("Tangent", 6, 2, 7, 1),
    Sketcher.Constraint("Coincident", 7, 2, 8, 1),
    Sketcher.Constraint("Coincident", 8, 2, 5, 1),
    Sketcher.Constraint("Tangent", 10, 2, 11, 1),
    Sketcher.Constraint("Tangent", 11, 2, 12, 1),
    Sketcher.Constraint("Coincident", 12, 2, 13, 1),
    Sketcher.Constraint("Coincident", 13, 2, 10, 1),
    Sketcher.Constraint("Tangent", 15, 2, 16, 1),
    Sketcher.Constraint("Tangent", 16, 2, 17, 1),
    Sketcher.Constraint("Coincident", 17, 2, 18, 1),
    Sketcher.Constraint("Coincident", 18, 2, 15, 1),
    Sketcher.Constraint("Vertical", 0),
    Sketcher.Constraint("Vertical", 2),
    Sketcher.Constraint("Horizontal", 5),
    Sketcher.Constraint("Horizontal", 7),
    Sketcher.Constraint("Vertical", 10),
    Sketcher.Constraint("Vertical", 12),
    Sketcher.Constraint("Horizontal", 15),
    Sketcher.Constraint("Horizontal", 17),
    Sketcher.Constraint("Coincident", 3, 3, -1, 1),
    Sketcher.Constraint("Coincident", 8, 3, -1, 1),
    Sketcher.Constraint("Coincident", 13, 3, -1, 1),
    Sketcher.Constraint("Coincident", 18, 3, -1, 1),
    Sketcher.Constraint("Coincident", 4, 3, 1, 3),
    Sketcher.Constraint("Coincident", 9, 3, 6, 3),
    Sketcher.Constraint("Coincident", 14, 3, 11, 3),
    Sketcher.Constraint("Coincident", 19, 3, 16, 3),
    Sketcher.Constraint("Equal", 1, 6),
    Sketcher.Constraint("Equal", 3, 8),
    Sketcher.Constraint("Equal", 4, 9),
    Sketcher.Constraint("Equal", 6, 11),
    Sketcher.Constraint("Equal", 8, 13),
    Sketcher.Constraint("Equal", 9, 14),
    Sketcher.Constraint("Equal", 11, 16),
    Sketcher.Constraint("Equal", 13, 18),
    Sketcher.Constraint("Equal", 14, 19),
    Sketcher.Constraint("Symmetric", 1, 3, 11, 3, -1, 1),
    Sketcher.Constraint("Symmetric", 6, 3, 16, 3, -1, 1),
    Sketcher.Constraint("PointOnObject", 1, 3, -2),
    Sketcher.Constraint("PointOnObject", 6, 3, -1),
    Sketcher.Constraint("Equal", 17, 0),
    Sketcher.Constraint("Radius", 1, Q("6 mm")),
    Sketcher.Constraint("Diameter", 4, Q("5.5 mm")),
    Sketcher.Constraint("Radius", 3, Q("37.9 mm")),
    Sketcher.Constraint("DistanceY", -1, 1, 1, 3, Q("33 mm")),
])
pad4 = doc.addObject("PartDesign::Pad", "Pad003")
body2.addObject(pad4)
pad4.Profile = sketch16
pad4.Length = 18.5

# Sketch on XZ plane
sketch17 = doc.addObject("Sketcher::SketchObject", "Sketch016")
body2.addObject(sketch17)
sketch17.AttachmentSupport = (doc.getObject("XZ_Plane001"), [""])
sketch17.MapMode = "FlatFace"
sketch17.AttachmentOffset = App.Placement(V(0, 0, 20), App.Rotation())
sketch17.addGeometry([
    Part.LineSegment(V(-44, 47, 0), V(-44, -47, 0)),
    Part.LineSegment(V(-44, -47, 0), V(44, -47, 0)),
    Part.LineSegment(V(44, -47, 0), V(44, 47, 0)),
    Part.LineSegment(V(44, 47, 0), V(-44, 47, 0)),
], False)
sketch17.addConstraint([
    Sketcher.Constraint("Coincident", 0, 2, 1, 1),
    Sketcher.Constraint("Coincident", 1, 2, 2, 1),
    Sketcher.Constraint("Coincident", 2, 2, 3, 1),
    Sketcher.Constraint("Coincident", 3, 2, 0, 1),
    Sketcher.Constraint("Vertical", 0),
    Sketcher.Constraint("Horizontal", 1),
    Sketcher.Constraint("Vertical", 2),
    Sketcher.Constraint("Horizontal", 3),
    Sketcher.Constraint("Symmetric", 0, 2, 2, 2, -1, 1),
    Sketcher.Constraint("DistanceX", 1, 1, 1, 2, Q("87.799081 mm")),
    Sketcher.Constraint("DistanceY", 0, 2, 0, 1, Q("93.099645 mm")),
])
pocket13 = doc.addObject("PartDesign::Pocket", "Pocket012")
body2.addObject(pocket13)
pocket13.Profile = sketch17
pocket13.Length = 10

doc.recompute()
